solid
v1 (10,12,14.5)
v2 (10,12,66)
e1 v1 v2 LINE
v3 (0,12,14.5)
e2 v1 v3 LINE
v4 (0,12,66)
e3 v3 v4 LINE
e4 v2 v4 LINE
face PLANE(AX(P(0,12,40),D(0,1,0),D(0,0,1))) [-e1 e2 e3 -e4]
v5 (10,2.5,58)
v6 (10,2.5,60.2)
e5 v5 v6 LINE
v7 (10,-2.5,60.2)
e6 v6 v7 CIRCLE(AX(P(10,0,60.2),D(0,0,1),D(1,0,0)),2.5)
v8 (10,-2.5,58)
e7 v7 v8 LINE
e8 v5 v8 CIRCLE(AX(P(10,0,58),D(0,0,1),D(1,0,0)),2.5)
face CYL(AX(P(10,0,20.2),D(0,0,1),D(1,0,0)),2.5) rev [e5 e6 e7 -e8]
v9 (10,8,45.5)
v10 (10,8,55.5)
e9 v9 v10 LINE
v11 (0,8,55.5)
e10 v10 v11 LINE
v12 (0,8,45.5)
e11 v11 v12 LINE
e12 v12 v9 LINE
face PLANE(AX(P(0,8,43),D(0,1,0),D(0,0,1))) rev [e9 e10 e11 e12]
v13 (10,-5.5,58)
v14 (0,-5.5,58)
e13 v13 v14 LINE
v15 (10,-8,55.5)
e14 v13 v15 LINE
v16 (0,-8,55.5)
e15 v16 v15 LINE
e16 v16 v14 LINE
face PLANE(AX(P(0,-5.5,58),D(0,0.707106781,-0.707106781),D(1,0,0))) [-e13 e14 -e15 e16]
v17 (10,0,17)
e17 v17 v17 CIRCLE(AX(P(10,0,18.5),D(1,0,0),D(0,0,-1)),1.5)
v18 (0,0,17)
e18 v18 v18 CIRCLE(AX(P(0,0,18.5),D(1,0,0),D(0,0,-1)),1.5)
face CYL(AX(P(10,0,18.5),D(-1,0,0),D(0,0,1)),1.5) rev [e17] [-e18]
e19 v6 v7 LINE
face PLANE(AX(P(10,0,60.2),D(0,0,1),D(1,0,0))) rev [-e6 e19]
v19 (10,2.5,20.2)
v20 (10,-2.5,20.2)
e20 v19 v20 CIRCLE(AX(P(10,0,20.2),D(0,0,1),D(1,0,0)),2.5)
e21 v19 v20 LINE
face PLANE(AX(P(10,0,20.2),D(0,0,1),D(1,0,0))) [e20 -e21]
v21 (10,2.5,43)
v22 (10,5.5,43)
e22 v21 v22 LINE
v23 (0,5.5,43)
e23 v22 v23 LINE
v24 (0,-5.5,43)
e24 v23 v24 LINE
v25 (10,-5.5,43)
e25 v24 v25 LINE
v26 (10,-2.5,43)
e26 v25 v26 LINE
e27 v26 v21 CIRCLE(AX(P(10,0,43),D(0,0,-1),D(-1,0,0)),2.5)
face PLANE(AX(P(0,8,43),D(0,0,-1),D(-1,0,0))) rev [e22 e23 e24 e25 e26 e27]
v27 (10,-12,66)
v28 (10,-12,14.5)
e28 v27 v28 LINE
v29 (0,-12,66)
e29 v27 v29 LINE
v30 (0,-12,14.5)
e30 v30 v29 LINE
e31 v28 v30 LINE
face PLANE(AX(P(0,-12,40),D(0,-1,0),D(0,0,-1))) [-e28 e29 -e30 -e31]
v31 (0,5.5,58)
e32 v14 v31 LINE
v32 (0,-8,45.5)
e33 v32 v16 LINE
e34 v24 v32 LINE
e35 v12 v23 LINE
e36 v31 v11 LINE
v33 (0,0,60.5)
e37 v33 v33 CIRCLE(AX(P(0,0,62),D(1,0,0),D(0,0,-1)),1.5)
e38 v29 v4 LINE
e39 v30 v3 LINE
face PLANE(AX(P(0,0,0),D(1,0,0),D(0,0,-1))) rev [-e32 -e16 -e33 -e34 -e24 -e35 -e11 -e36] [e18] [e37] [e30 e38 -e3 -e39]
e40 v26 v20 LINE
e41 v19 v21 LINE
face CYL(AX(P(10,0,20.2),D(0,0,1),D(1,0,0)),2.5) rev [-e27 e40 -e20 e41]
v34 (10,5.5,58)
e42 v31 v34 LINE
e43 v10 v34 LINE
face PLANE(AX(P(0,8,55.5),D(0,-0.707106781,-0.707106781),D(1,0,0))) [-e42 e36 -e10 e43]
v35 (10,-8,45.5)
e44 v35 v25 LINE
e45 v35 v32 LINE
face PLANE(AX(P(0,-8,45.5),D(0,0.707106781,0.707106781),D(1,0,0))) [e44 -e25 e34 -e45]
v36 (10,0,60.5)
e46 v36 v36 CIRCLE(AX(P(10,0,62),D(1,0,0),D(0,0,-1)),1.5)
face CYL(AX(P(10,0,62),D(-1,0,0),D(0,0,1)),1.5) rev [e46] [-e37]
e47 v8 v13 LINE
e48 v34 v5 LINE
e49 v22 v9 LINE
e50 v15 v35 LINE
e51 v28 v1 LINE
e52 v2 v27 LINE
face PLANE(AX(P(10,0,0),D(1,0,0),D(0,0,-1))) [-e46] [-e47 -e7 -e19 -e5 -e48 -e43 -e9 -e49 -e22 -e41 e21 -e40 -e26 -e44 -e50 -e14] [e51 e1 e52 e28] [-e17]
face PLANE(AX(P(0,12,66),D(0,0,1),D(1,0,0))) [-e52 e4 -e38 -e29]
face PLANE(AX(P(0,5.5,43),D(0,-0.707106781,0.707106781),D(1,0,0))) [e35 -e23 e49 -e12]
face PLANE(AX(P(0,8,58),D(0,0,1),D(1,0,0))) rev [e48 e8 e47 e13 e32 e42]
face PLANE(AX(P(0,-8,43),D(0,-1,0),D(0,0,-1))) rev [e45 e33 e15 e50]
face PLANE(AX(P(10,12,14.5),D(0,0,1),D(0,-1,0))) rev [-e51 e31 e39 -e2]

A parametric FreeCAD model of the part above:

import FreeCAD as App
import Part
import Sketcher
from FreeCAD import Vector


def edges_at(feature, points):
    """Names of the edges that pass closest to the given points."""
    edges = feature.Shape.Edges
    near = lambda p: min(range(len(edges)), key=lambda i: edges[i].distToShape(Part.Vertex(*p))[0])
    return sorted({f"Edge{near(p) + 1}" for p in points})

doc = App.newDocument("Part")
body = doc.addObject("PartDesign::Body", "Body")

sketch1 = body.newObject("Sketcher::SketchObject", "Sketch")
sketch1.AttachmentSupport = (doc.getObject("XY_Plane"), [""])
sketch1.MapMode = "FlatFace"
sketch1.addGeometry(Part.LineSegment(Vector(-21, 21, 0), Vector(-21, -21, 0)), False)
sketch1.addGeometry(Part.LineSegment(Vector(-21, -21, 0), Vector(21, -21, 0)), False)
sketch1.addGeometry(Part.LineSegment(Vector(21, -21, 0), Vector(21, 21, 0)), False)
sketch1.addGeometry(Part.LineSegment(Vector(21, 21, 0), Vector(-21, 21, 0)), False)
sketch1.addConstraint(Sketcher.Constraint("Coincident", 0, 2, 1, 1))
sketch1.addConstraint(Sketcher.Constraint("Coincident", 1, 2, 2, 1))
sketch1.addConstraint(Sketcher.Constraint("Coincident", 2, 2, 3, 1))
sketch1.addConstraint(Sketcher.Constraint("Coincident", 3, 2, 0, 1))
sketch1.addConstraint(Sketcher.Constraint("Vertical", 0))
sketch1.addConstraint(Sketcher.Constraint("Horizontal", 1))
sketch1.addConstraint(Sketcher.Constraint("Vertical", 2))
sketch1.addConstraint(Sketcher.Constraint("Horizontal", 3))
sketch1.addConstraint(Sketcher.Constraint("Symmetric", 0, 2, 2, 2, -1, 1))
sketch1.addConstraint(Sketcher.Constraint("Equal", 3, 0))
sketch1.addConstraint(Sketcher.Constraint("DistanceX", 1, 1, 1, 2, 42.0))
pad1 = body.newObject("PartDesign::Pad", "Pad")
pad1.Profile = sketch1
pad1.Length = 40
doc.recompute()

chamfer = body.newObject("PartDesign::Chamfer", "Chamfer")
chamfer.Base = (pad1, edges_at(pad1, [
    (-21, 21, 20),
    (21, 21, 20),
    (21, -21, 20),
    (-21, -21, 20),
]))
chamfer.Size = 5

sketch2 = body.newObject("Sketcher::SketchObject", "Sketch001")
sketch2.AttachmentSupport = (doc.getObject("XY_Plane"), [""])
sketch2.MapMode = "FlatFace"
sketch2.AttachmentOffset = App.Placement(Vector(0, 0, 40), App.Rotation())
sketch2.addGeometry(Part.Circle(Vector(-15.5, 15.5, 0), Vector(0, 0, 1), 1.75), False)
sketch2.addGeometry(Part.Circle(Vector(-15.5, -15.5, 0), Vector(0, 0, 1), 1.75), False)
sketch2.addGeometry(Part.Circle(Vector(15.5, -15.5, 0), Vector(0, 0, 1), 1.75), False)
sketch2.addGeometry(Part.Circle(Vector(15.5, 15.5, 0), Vector(0, 0, 1), 1.75), False)
sketch2.addConstraint(Sketcher.Constraint("Equal", 0, 1))
sketch2.addConstraint(Sketcher.Constraint("Equal", 1, 2))
sketch2.addConstraint(Sketcher.Constraint("Equal", 2, 3))
sketch2.addConstraint(Sketcher.Constraint("Symmetric", 0, 3, 2, 3, -1, 1))
sketch2.addConstraint(Sketcher.Constraint("Symmetric", 1, 3, 3, 3, -1, 1))
sketch2.addConstraint(Sketcher.Constraint("Symmetric", 1, 3, 2, 3, -2))
sketch2.addConstraint(Sketcher.Constraint("Diameter", 0, 3.5))
sketch2.addConstraint(Sketcher.Constraint("DistanceY", 1, 3, 0, 3, 31.0))
sketch2.addConstraint(Sketcher.Constraint("DistanceX", 1, 3, 2, 3, 31.0))
pocket1 = body.newObject("PartDesign::Pocket", "Pocket")
pocket1.Profile = sketch2
pocket1.Length = 3

sketch3 = body.newObject("Sketcher::SketchObject", "Sketch002")
sketch3.AttachmentSupport = (doc.getObject("YZ_Plane"), [""])
sketch3.MapMode = "FlatFace"
sketch3.AttachmentOffset = App.Placement(Vector(0, 0, 21), App.Rotation())
sketch3.addGeometry(Part.LineSegment(Vector(12, 40, 0), Vector(-12, 40, 0)), False)
sketch3.addGeometry(Part.LineSegment(Vector(-12, 40, 0), Vector(-12, 0, 0)), False)
sketch3.addGeometry(Part.LineSegment(Vector(-12, 0, 0), Vector(12, 0, 0)), False)
sketch3.addGeometry(Part.LineSegment(Vector(12, 0, 0), Vector(12, 40, 0)), False)
sketch3.addConstraint(Sketcher.Constraint("Coincident", 0, 2, 1, 1))
sketch3.addConstraint(Sketcher.Constraint("Coincident", 1, 2, 2, 1))
sketch3.addConstraint(Sketcher.Constraint("Coincident", 2, 2, 3, 1))
sketch3.addConstraint(Sketcher.Constraint("Coincident", 3, 2, 0, 1))
sketch3.addConstraint(Sketcher.Constraint("Horizontal", 0))
sketch3.addConstraint(Sketcher.Constraint("Vertical", 1))
sketch3.addConstraint(Sketcher.Constraint("Horizontal", 2))
sketch3.addConstraint(Sketcher.Constraint("Vertical", 3))
sketch3.addConstraint(Sketcher.Constraint("Symmetric", 1, 2, 2, 2, -1, 1))
sketch3.addConstraint(Sketcher.Constraint("DistanceX", 0, 2, 0, 1, 24.0))
sketch3.addConstraint(Sketcher.Constraint("DistanceY", 1, 2, 1, 1, 40.0))
pocket2 = body.newObject("PartDesign::Pocket", "Pocket001")
pocket2.Profile = sketch3
pocket2.Length = 21
body2 = doc.addObject("PartDesign::Body", "Body001")

sketch4 = body2.newObject("Sketcher::SketchObject", "Sketch003")
sketch4.AttachmentSupport = (doc.getObject("YZ_Plane001"), [""])
sketch4.MapMode = "FlatFace"
sketch4.AttachmentOffset = App.Placement(Vector(0, 0, -21), App.Rotation())
sketch4.addGeometry(Part.LineSegment(Vector(12, 40, 0), Vector(-12, 40, 0)), False)
sketch4.addGeometry(Part.LineSegment(Vector(-12, 40, 0), Vector(-12, 66, 0)), False)
sketch4.addGeometry(Part.LineSegment(Vector(-12, 66, 0), Vector(12, 66, 0)), False)
sketch4.addGeometry(Part.LineSegment(Vector(12, 66, 0), Vector(12, 40, 0)), False)
sketch4.addGeometry(Part.LineSegment(Vector(-8, 58, 0), Vector(-8, 43, 0)), False)
sketch4.addGeometry(Part.LineSegment(Vector(-8, 43, 0), Vector(8, 43, 0)), False)
sketch4.addGeometry(Part.LineSegment(Vector(8, 43, 0), Vector(8, 58, 0)), False)
sketch4.addGeometry(Part.LineSegment(Vector(8, 58, 0), Vector(-8, 58, 0)), False)
sketch4.addConstraint(Sketcher.Constraint("Coincident", 0, 2, 1, 1))
sketch4.addConstraint(Sketcher.Constraint("Coincident", 1, 2, 2, 1))
sketch4.addConstraint(Sketcher.Constraint("Coincident", 2, 2, 3, 1))
sketch4.addConstraint(Sketcher.Constraint("Coincident", 3, 2, 0, 1))
sketch4.addConstraint(Sketcher.Constraint("Coincident", 4, 2, 5, 1))
sketch4.addConstraint(Sketcher.Constraint("Coincident", 5, 2, 6, 1))
sketch4.addConstraint(Sketcher.Constraint("Coincident", 6, 2, 7, 1))
sketch4.addConstraint(Sketcher.Constraint("Coincident", 7, 2, 4, 1))
sketch4.addConstraint(Sketcher.Constraint("Horizontal", 0))
sketch4.addConstraint(Sketcher.Constraint("Vertical", 1))
sketch4.addConstraint(Sketcher.Constraint("Horizontal", 2))
sketch4.addConstraint(Sketcher.Constraint("Vertical", 3))
sketch4.addConstraint(Sketcher.Constraint("Vertical", 4))
sketch4.addConstraint(Sketcher.Constraint("Horizontal", 5))
sketch4.addConstraint(Sketcher.Constraint("Vertical", 6))
sketch4.addConstraint(Sketcher.Constraint("Horizontal", 7))
sketch4.addConstraint(Sketcher.Constraint("DistanceX", 0, 2, 0, 1, 24.0))
sketch4.addConstraint(Sketcher.Constraint("DistanceX", 5, 1, 5, 2, 16.0))
sketch4.addConstraint(Sketcher.Constraint("DistanceY", 1, 1, 1, 2, 26.0))
sketch4.addConstraint(Sketcher.Constraint("DistanceY", 4, 2, 4, 1, 15.0))
sketch4.addConstraint(Sketcher.Constraint("DistanceX", 0, 2, -1, 1, 12.0))
sketch4.addConstraint(Sketcher.Constraint("DistanceY", -1, 1, 0, 2, 40.0))
sketch4.addConstraint(Sketcher.Constraint("DistanceX", 4, 2, -1, 1, 8.0))
sketch4.addConstraint(Sketcher.Constraint("DistanceY", -1, 1, 4, 2, 43.0))
pad2 = body2.newObject("PartDesign::Pad", "Pad001")
pad2.Profile = sketch4
pad2.Length = 21
body3 = doc.addObject("PartDesign::Body", "Body002")
body3.AllowCompound = True

sketch5 = body3.newObject("Sketcher::SketchObject", "Sketch004")
sketch5.AttachmentSupport = (doc.getObject("YZ_Plane002"), [""])
sketch5.MapMode = "FlatFace"
sketch5.addGeometry(Part.Circle(Vector(0, 62, 0), Vector(0, 0, 1), 3), False)
sketch5.addGeometry(Part.Circle(Vector(0, 18.5, 0), Vector(0, 0, 1), 3), False)
sketch5.addConstraint(Sketcher.Constraint("Equal", 0, 1))
sketch5.addConstraint(Sketcher.Constraint("PointOnObject", 0, 3, -2))
sketch5.addConstraint(Sketcher.Constraint("PointOnObject", 1, 3, -2))
sketch5.addConstraint(Sketcher.Constraint("Diameter", 0, 6.0))
sketch5.addConstraint(Sketcher.Constraint("DistanceY", -1, 1, 0, 3, 62.0))
sketch5.addConstraint(Sketcher.Constraint("DistanceY", -1, 1, 1, 3, 18.5))
pad3 = body3.newObject("PartDesign::Pad", "Pad002")
pad3.Profile = sketch5
pad3.Length = 10
pad3.Reversed = True
doc.recompute()

body4 = doc.addObject("PartDesign::Body", "Body003")
body4.BaseFeature = body3
boolean = body.newObject("PartDesign::Boolean", "Boolean")
boolean.Type = "Cut"
boolean.addObjects([body4])
doc.recompute()

boolean2 = body2.newObject("PartDesign::Boolean", "Boolean001")
boolean2.Type = "Cut"
boolean2.addObjects([body3])
doc.recompute()

chamfer2 = body2.newObject("PartDesign::Chamfer", "Chamfer001")
chamfer2.Base = (boolean2, edges_at(boolean2, [
    (-10.5, -8, 43),
    (-10.5, 8, 43),
    (-10.5, 8, 58),
    (-10.5, -8, 58),
]))
chamfer2.Size = 2.5
doc.recompute()

boolean3 = body.newObject("PartDesign::Boolean", "Boolean002")
boolean3.Type = "Fuse"
boolean3.addObjects([body2])

sketch6 = body.newObject("Sketcher::SketchObject", "Sketch005")
sketch6.AttachmentSupport = (doc.getObject("YZ_Plane"), [""])
sketch6.MapMode = "FlatFace"
sketch6.addGeometry(Part.LineSegment(Vector(12, 66, 0), Vector(-12, 66, 0)), False)
sketch6.addGeometry(Part.LineSegment(Vector(-12, 66, 0), Vector(-12, 14.5, 0)), False)
sketch6.addGeometry(Part.LineSegment(Vector(-12, 14.5, 0), Vector(12, 14.5, 0)), False)
sketch6.addGeometry(Part.LineSegment(Vector(12, 14.5, 0), Vector(12, 66, 0)), False)
sketch6.addGeometry(Part.Circle(Vector(0, 62, 0), Vector(0, 0, 1), 1.5), False)
sketch6.addGeometry(Part.LineSegment(Vector(-5.5, 58, 0), Vector(5.5, 58, 0)), False)
sketch6.addGeometry(Part.LineSegment(Vector(5.5, 58, 0), Vector(8, 55.5, 0)), False)
sketch6.addGeometry(Part.LineSegment(Vector(8, 55.5, 0), Vector(8, 45.5, 0)), False)
sketch6.addGeometry(Part.LineSegment(Vector(8, 45.5, 0), Vector(5.5, 43, 0)), False)
sketch6.addGeometry(Part.LineSegment(Vector(5.5, 43, 0), Vector(-5.5, 43, 0)), False)
sketch6.addGeometry(Part.LineSegment(Vector(-5.5, 43, 0), Vector(-8, 45.5, 0)), False)
sketch6.addGeometry(Part.LineSegment(Vector(-8, 45.5, 0), Vector(-8, 55.5, 0)), False)
sketch6.addGeometry(Part.LineSegment(Vector(-8, 55.5, 0), Vector(-5.5, 58, 0)), False)
sketch6.addGeometry(Part.Circle(Vector(0, 18.5, 0), Vector(0, 0, 1), 1.5), False)
sketch6.addConstraint(Sketcher.Constraint("Coincident", 0, 2, 1, 1))
sketch6.addConstraint(Sketcher.Constraint("Coincident", 1, 2, 2, 1))
sketch6.addConstraint(Sketcher.Constraint("Coincident", 2, 2, 3, 1))
sketch6.addConstraint(Sketcher.Constraint("Coincident", 3, 2, 0, 1))
sketch6.addConstraint(Sketcher.Constraint("Coincident", 5, 2, 6, 1))
sketch6.addConstraint(Sketcher.Constraint("Coincident", 6, 2, 7, 1))
sketch6.addConstraint(Sketcher.Constraint("Coincident", 7, 2, 8, 1))
sketch6.addConstraint(Sketcher.Constraint("Coincident", 8, 2, 9, 1))
sketch6.addConstraint(Sketcher.Constraint("Coincident", 9, 2, 10, 1))
sketch6.addConstraint(Sketcher.Constraint("Coincident", 10, 2, 11, 1))
sketch6.addConstraint(Sketcher.Constraint("Coincident", 11, 2, 12, 1))
sketch6.addConstraint(Sketcher.Constraint("Coincident", 12, 2, 5, 1))
sketch6.addConstraint(Sketcher.Constraint("Horizontal", 0))
sketch6.addConstraint(Sketcher.Constraint("Vertical", 1))
sketch6.addConstraint(Sketcher.Constraint("Horizontal", 2))
sketch6.addConstraint(Sketcher.Constraint("Vertical", 3))
sketch6.addConstraint(Sketcher.Constraint("Horizontal", 5))
sketch6.addConstraint(Sketcher.Constraint("Vertical", 7))
sketch6.addConstraint(Sketcher.Constraint("Horizontal", 9))
sketch6.addConstraint(Sketcher.Constraint("Vertical", 11))
sketch6.addConstraint(Sketcher.Constraint("Equal", 4, 13))
sketch6.addConstraint(Sketcher.Constraint("Symmetric", 7, 2, 10, 2, -2))
sketch6.addConstraint(Sketcher.Constraint("PointOnObject", 4, 3, -2))
sketch6.addConstraint(Sketcher.Constraint("PointOnObject", 13, 3, -2))
sketch6.addConstraint(Sketcher.Constraint("Perpendicular", 6, 8))
sketch6.addConstraint(Sketcher.Constraint("Perpendicular", 8, 10))
sketch6.addConstraint(Sketcher.Constraint("Perpendicular", 10, 12))
sketch6.addConstraint(Sketcher.Constraint("Horizontal", 6, 2, 11, 2))
sketch6.addConstraint(Sketcher.Constraint("Vertical", 5, 2, 8, 2))
sketch6.addConstraint(Sketcher.Constraint("Vertical", 9, 2, 12, 2))
sketch6.addConstraint(Sketcher.Constraint("Diameter", 4, 3.0))
sketch6.addConstraint(Sketcher.Constraint("DistanceX", 0, 2, 0, 1, 24.0))
sketch6.addConstraint(Sketcher.Constraint("DistanceX", 5, 1, 5, 2, 11.0))
sketch6.addConstraint(Sketcher.Constraint("DistanceY", 7, 2, 7, 1, 10.0))
sketch6.addConstraint(Sketcher.Constraint("DistanceY", 1, 2, 1, 1, 51.5))
sketch6.addConstraint(Sketcher.Constraint("DistanceY", -1, 1, 4, 3, 62.0))
sketch6.addConstraint(Sketcher.Constraint("DistanceX", 0, 2, -1, 1, 12.0))
sketch6.addConstraint(Sketcher.Constraint("DistanceY", -1, 1, 0, 2, 66.0))
sketch6.addConstraint(Sketcher.Constraint("DistanceY", -1, 1, 5, 2, 58.0))
sketch6.addConstraint(Sketcher.Constraint("DistanceX", -1, 1, 6, 2, 8.0))
sketch6.addConstraint(Sketcher.Constraint("DistanceY", 1, 2, 13, 3, 4.0))
pad4 = body.newObject("PartDesign::Pad", "Pad003")
pad4.Profile = sketch6
pad4.Length = 10

sketch7 = body.newObject("Sketcher::SketchObject", "Sketch006")
sketch7.AttachmentSupport = (doc.getObject("XY_Plane"), [""])
sketch7.MapMode = "FlatFace"
sketch7.AttachmentOffset = App.Placement(Vector(0, 0, 66), App.Rotation())
sketch7.addGeometry(Part.LineSegment(Vector(21, 12, 0), Vector(21, 16, 0)), False)
sketch7.addGeometry(Part.LineSegment(Vector(21, 16, 0), Vector(16, 21, 0)), False)
sketch7.addGeometry(Part.LineSegment(Vector(16, 21, 0), Vector(-16, 21, 0)), False)
sketch7.addGeometry(Part.LineSegment(Vector(-16, 21, 0), Vector(-21, 16, 0)), False)
sketch7.addGeometry(Part.LineSegment(Vector(-21, 16, 0), Vector(-21, -16, 0)), False)
sketch7.addGeometry(Part.LineSegment(Vector(-21, -16, 0), Vector(-16, -21, 0)), False)
sketch7.addGeometry(Part.LineSegment(Vector(-16, -21, 0), Vector(16, -21, 0)), False)
sketch7.addGeometry(Part.LineSegment(Vector(16, -21, 0), Vector(21, -16, 0)), False)
sketch7.addGeometry(Part.LineSegment(Vector(21, -16, 0), Vector(21, -12, 0)), False)
sketch7.addGeometry(Part.LineSegment(Vector(21, -12, 0), Vector(0, -12, 0)), False)
sketch7.addGeometry(Part.LineSegment(Vector(0, -12, 0), Vector(0, 12, 0)), False)
sketch7.addGeometry(Part.LineSegment(Vector(0, 12, 0), Vector(21, 12, 0)), False)
sketch7.addConstraint(Sketcher.Constraint("Coincident", 0, 2, 1, 1))
sketch7.addConstraint(Sketcher.Constraint("Coincident", 1, 2, 2, 1))
sketch7.addConstraint(Sketcher.Constraint("Coincident", 2, 2, 3, 1))
sketch7.addConstraint(Sketcher.Constraint("Coincident", 3, 2, 4, 1))
sketch7.addConstraint(Sketcher.Constraint("Coincident", 4, 2, 5, 1))
sketch7.addConstraint(Sketcher.Constraint("Coincident", 5, 2, 6, 1))
sketch7.addConstraint(Sketcher.Constraint("Coincident", 6, 2, 7, 1))
sketch7.addConstraint(Sketcher.Constraint("Coincident", 7, 2, 8, 1))
sketch7.addConstraint(Sketcher.Constraint("Coincident", 8, 2, 9, 1))
sketch7.addConstraint(Sketcher.Constraint("Coincident", 9, 2, 10, 1))
sketch7.addConstraint(Sketcher.Constraint("Coincident", 10, 2, 11, 1))
sketch7.addConstraint(Sketcher.Constraint("Coincident", 11, 2, 0, 1))
sketch7.addConstraint(Sketcher.Constraint("Vertical", 0))
sketch7.addConstraint(Sketcher.Constraint("Horizontal", 2))
sketch7.addConstraint(Sketcher.Constraint("Vertical", 4))
sketch7.addConstraint(Sketcher.Constraint("Horizontal", 6))
sketch7.addConstraint(Sketcher.Constraint("Vertical", 8))
sketch7.addConstraint(Sketcher.Constraint("Horizontal", 9))
sketch7.addConstraint(Sketcher.Constraint("Vertical", 10))
sketch7.addConstraint(Sketcher.Constraint("Horizontal", 11))
sketch7.addConstraint(Sketcher.Constraint("Symmetric", 0, 2, 4, 2, -1, 1))
sketch7.addConstraint(Sketcher.Constraint("Symmetric", 1, 2, 5, 2, -1, 1))
sketch7.addConstraint(Sketcher.Constraint("Symmetric", 3, 2, 7, 2, -1, 1))
sketch7.addConstraint(Sketcher.Constraint("Symmetric", 9, 2, 10, 2, -1, 1))
sketch7.addConstraint(Sketcher.Constraint("Perpendicular", 1, 3))
sketch7.addConstraint(Sketcher.Constraint("Perpendicular", 5, 7))
sketch7.addConstraint(Sketcher.Constraint("Horizontal", 0, 2, 3, 2))
sketch7.addConstraint(Sketcher.Constraint("Vertical", 2, 2, 5, 2))
sketch7.addConstraint(Sketcher.Constraint("Equal", 6, 4))
sketch7.addConstraint(Sketcher.Constraint("DistanceX", 2, 2, 2, 1, 32.0))
sketch7.addConstraint(Sketcher.Constraint("DistanceX", 9, 2, 9, 1, 21.0))
sketch7.addConstraint(Sketcher.Constraint("DistanceY", 0, 1, 0, 2, 4.0))
pocket3 = body.newObject("PartDesign::Pocket", "Pocket002")
pocket3.Profile = sketch7
pocket3.Type = "ThroughAll"

sketch8 = body.newObject("Sketcher::SketchObject", "Sketch007")
sketch8.AttachmentSupport = (doc.getObject("XY_Plane"), [""])
sketch8.MapMode = "FlatFace"
sketch8.AttachmentOffset = App.Placement(Vector(0, 0, 60.2), App.Rotation())
sketch8.addGeometry(Part.Circle(Vector(10, 0, 0), Vector(0, 0, 1), 2.5), False)
sketch8.addConstraint(Sketcher.Constraint("PointOnObject", 0, 3, -1))
sketch8.addConstraint(Sketcher.Constraint("Diameter", 0, 5.0))
sketch8.addConstraint(Sketcher.Constraint("DistanceX", -1, 1, 0, 3, 10.0))
pocket4 = body.newObject("PartDesign::Pocket", "Pocket003")
pocket4.Profile = sketch8
pocket4.Length = 40

doc.recompute()
